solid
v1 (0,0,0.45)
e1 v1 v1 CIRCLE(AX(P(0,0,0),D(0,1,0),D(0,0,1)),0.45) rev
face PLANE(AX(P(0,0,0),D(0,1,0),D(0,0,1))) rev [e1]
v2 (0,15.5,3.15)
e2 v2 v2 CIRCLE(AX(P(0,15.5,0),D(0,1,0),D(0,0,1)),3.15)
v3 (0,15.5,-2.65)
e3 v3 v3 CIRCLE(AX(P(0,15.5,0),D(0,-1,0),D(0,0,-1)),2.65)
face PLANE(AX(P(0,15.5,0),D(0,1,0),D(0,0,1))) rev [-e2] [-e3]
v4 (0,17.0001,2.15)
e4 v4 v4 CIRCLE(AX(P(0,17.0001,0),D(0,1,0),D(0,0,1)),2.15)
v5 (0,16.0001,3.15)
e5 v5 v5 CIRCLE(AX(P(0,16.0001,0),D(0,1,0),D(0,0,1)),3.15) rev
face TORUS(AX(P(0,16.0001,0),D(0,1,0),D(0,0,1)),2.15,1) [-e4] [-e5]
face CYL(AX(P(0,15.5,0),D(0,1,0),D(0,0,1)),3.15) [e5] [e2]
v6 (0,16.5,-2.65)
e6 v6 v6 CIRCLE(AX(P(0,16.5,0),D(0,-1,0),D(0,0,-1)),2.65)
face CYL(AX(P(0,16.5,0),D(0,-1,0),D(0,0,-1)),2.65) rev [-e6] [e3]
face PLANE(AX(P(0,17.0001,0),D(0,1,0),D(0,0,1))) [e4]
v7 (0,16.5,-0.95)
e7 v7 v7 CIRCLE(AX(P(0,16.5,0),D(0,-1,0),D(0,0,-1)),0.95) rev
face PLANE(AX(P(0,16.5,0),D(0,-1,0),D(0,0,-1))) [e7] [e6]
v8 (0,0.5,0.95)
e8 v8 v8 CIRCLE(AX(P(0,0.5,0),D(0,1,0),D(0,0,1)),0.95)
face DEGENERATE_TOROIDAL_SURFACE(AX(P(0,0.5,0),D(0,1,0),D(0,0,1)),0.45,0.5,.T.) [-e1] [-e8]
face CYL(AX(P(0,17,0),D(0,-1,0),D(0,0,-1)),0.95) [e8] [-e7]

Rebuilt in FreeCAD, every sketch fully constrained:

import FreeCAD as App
import Part
import Sketcher


def edges_at(feature, points):
    """Names of the edges that pass closest to the given points."""
    edges = feature.Shape.Edges
    near = lambda p: min(range(len(edges)), key=lambda i: edges[i].distToShape(Part.Vertex(*p))[0])
    return sorted({f"Edge{near(p) + 1}" for p in points})

doc = App.newDocument("Part")
body = doc.addObject("PartDesign::Body", "Body")

# Sketch on XZ plane
sketch1 = body.newObject("Sketcher::SketchObject", "Sketch")
sketch1.AttachmentSupport = (doc.getObject("XZ_Plane"), [""])
sketch1.MapMode = "FlatFace"
sketch1.addGeometry(Part.Circle(App.Vector(0, 0, 0), App.Vector(0, 0, 1), 0.9), False)
sketch1.addConstraint([
    Sketcher.Constraint("Coincident", 0, 3, -1, 1),
    Sketcher.Constraint("Diameter", 0, 1.9),
])
pad1 = body.newObject("PartDesign::Pad", "Pad")
pad1.Profile = sketch1
pad1.Length = 17
pad1.Reversed = True

# Sketch on XZ plane
sketch2 = body.newObject("Sketcher::SketchObject", "Sketch001")
sketch2.AttachmentSupport = (doc.getObject("XZ_Plane"), [""])
sketch2.MapMode = "FlatFace"
sketch2.AttachmentOffset = App.Placement(App.Vector(0, 0, -17), App.Rotation())
sketch2.addGeometry(Part.Circle(App.Vector(0, 0, 0), App.Vector(0, 0, 1), 3.1), False)
sketch2.addConstraint([
    Sketcher.Constraint("Coincident", 0, 3, -1, 1),
    Sketcher.Constraint("Diameter", 0, 6.3),
])
pad2 = body.newObject("PartDesign::Pad", "Pad001")
pad2.Profile = sketch2
pad2.Type = "TwoLengths"
pad2.Length = 0.0001
pad2.Length2 = 1.5
pad2.Reversed = True
doc.recompute()

fillet = body.newObject("PartDesign::Fillet", "Fillet")
fillet.Base = (pad2, edges_at(pad2, [(0, 0, -0.95)]))
fillet.Radius = 0.5
doc.recompute()

fillet2 = body.newObject("PartDesign::Fillet", "Fillet001")
fillet2.Base = (fillet, edges_at(fillet, [(0, 17, -3.15)]))
fillet2.Radius = 1

# Sketch on XZ plane
sketch3 = body.newObject("Sketcher::SketchObject", "Sketch002")
sketch3.AttachmentSupport = (doc.getObject("XZ_Plane"), [""])
sketch3.MapMode = "FlatFace"
sketch3.AttachmentOffset = App.Placement(App.Vector(0, 0, -15.5), App.Rotation())
sketch3.addGeometry([
    Part.Circle(App.Vector(0, 0, 0), App.Vector(0, 0, 1), 2.6),
    Part.Circle(App.Vector(0, 0, 0), App.Vector(0, 0, 1), 0.9),
], False)
sketch3.addConstraint([
    Sketcher.Constraint("Coincident", 0, 3, -1, 1),
    Sketcher.Constraint("Coincident", 1, 3, -1, 1),
    Sketcher.Constraint("Diameter", 0, 5.3),
    Sketcher.Constraint("Diameter", 1, 1.9),
])
pocket1 = body.newObject("PartDesign::Pocket", "Pocket")
pocket1.Profile = sketch3
pocket1.Length = 1

doc.recompute()
